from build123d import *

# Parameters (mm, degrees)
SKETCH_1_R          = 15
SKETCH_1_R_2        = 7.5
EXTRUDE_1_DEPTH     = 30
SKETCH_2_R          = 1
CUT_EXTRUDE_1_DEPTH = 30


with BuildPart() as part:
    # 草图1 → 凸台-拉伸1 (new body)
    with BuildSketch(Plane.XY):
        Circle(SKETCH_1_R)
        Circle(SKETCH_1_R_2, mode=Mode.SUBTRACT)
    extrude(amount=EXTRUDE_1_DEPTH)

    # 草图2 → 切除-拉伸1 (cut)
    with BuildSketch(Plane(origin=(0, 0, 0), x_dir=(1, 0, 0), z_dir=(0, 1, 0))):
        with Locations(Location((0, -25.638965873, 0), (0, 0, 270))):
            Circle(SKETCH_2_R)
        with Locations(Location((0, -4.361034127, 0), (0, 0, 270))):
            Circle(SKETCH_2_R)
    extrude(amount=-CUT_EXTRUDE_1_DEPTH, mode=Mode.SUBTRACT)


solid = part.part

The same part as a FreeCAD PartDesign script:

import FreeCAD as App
import Part
import Sketcher
from FreeCAD import Vector

doc = App.newDocument("Part")
body = doc.addObject("PartDesign::Body", "Body")

# Sketch on XY plane
sketch1 = doc.addObject("Sketcher::SketchObject", "Sketch")
body.addObject(sketch1)
sketch1.AttachmentSupport = (doc.XY_Plane, [""])
sketch1.MapMode = "FlatFace"
sketch1.addGeometry(Part.Circle(Vector(0, 0, 0), Vector(0, 0, 1), 15), False)
sketch1.addGeometry(Part.Circle(Vector(0, 0, 0), Vector(0, 0, 1), 8), False)
sketch1.addConstraint(Sketcher.Constraint("Coincident", 0, 3, -1, 1))
sketch1.addConstraint(Sketcher.Constraint("Coincident", 1, 3, -1, 1))
sketch1.addConstraint(Sketcher.Constraint("Diameter", 0, 30.0))
sketch1.addConstraint(Sketcher.Constraint("Diameter", 1, 15.0))
pad1 = doc.addObject("PartDesign::Pad", "Pad")
body.addObject(pad1)
pad1.Profile = sketch1
pad1.Length = 30

# Sketch on XZ plane
sketch2 = doc.addObject("Sketcher::SketchObject", "Sketch001")
body.addObject(sketch2)
sketch2.AttachmentSupport = (doc.XZ_Plane, [""])
sketch2.MapMode = "FlatFace"
sketch2.addGeometry(Part.Circle(Vector(0, 25.6, 0), Vector(0, 0, 1), 1), False)
sketch2.addGeometry(Part.Circle(Vector(0, 4.4, 0), Vector(0, 0, 1), 1), False)
sketch2.addConstraint(Sketcher.Constraint("Equal", 0, 1))
sketch2.addConstraint(Sketcher.Constraint("PointOnObject", 0, 3, -2))
sketch2.addConstraint(Sketcher.Constraint("PointOnObject", 1, 3, -2))
sketch2.addConstraint(Sketcher.Constraint("Diameter", 0, 2.0))
sketch2.addConstraint(Sketcher.Constraint("DistanceY", 1, 3, 0, 3, 21.277932))
sketch2.addConstraint(Sketcher.Constraint("DistanceY", -1, 1, 0, 3, 25.638966))
pocket1 = doc.addObject("PartDesign::Pocket", "Pocket")
body.addObject(pocket1)
pocket1.Profile = sketch2
pocket1.Length = 30
pocket1.Reversed = True

doc.recompute()
